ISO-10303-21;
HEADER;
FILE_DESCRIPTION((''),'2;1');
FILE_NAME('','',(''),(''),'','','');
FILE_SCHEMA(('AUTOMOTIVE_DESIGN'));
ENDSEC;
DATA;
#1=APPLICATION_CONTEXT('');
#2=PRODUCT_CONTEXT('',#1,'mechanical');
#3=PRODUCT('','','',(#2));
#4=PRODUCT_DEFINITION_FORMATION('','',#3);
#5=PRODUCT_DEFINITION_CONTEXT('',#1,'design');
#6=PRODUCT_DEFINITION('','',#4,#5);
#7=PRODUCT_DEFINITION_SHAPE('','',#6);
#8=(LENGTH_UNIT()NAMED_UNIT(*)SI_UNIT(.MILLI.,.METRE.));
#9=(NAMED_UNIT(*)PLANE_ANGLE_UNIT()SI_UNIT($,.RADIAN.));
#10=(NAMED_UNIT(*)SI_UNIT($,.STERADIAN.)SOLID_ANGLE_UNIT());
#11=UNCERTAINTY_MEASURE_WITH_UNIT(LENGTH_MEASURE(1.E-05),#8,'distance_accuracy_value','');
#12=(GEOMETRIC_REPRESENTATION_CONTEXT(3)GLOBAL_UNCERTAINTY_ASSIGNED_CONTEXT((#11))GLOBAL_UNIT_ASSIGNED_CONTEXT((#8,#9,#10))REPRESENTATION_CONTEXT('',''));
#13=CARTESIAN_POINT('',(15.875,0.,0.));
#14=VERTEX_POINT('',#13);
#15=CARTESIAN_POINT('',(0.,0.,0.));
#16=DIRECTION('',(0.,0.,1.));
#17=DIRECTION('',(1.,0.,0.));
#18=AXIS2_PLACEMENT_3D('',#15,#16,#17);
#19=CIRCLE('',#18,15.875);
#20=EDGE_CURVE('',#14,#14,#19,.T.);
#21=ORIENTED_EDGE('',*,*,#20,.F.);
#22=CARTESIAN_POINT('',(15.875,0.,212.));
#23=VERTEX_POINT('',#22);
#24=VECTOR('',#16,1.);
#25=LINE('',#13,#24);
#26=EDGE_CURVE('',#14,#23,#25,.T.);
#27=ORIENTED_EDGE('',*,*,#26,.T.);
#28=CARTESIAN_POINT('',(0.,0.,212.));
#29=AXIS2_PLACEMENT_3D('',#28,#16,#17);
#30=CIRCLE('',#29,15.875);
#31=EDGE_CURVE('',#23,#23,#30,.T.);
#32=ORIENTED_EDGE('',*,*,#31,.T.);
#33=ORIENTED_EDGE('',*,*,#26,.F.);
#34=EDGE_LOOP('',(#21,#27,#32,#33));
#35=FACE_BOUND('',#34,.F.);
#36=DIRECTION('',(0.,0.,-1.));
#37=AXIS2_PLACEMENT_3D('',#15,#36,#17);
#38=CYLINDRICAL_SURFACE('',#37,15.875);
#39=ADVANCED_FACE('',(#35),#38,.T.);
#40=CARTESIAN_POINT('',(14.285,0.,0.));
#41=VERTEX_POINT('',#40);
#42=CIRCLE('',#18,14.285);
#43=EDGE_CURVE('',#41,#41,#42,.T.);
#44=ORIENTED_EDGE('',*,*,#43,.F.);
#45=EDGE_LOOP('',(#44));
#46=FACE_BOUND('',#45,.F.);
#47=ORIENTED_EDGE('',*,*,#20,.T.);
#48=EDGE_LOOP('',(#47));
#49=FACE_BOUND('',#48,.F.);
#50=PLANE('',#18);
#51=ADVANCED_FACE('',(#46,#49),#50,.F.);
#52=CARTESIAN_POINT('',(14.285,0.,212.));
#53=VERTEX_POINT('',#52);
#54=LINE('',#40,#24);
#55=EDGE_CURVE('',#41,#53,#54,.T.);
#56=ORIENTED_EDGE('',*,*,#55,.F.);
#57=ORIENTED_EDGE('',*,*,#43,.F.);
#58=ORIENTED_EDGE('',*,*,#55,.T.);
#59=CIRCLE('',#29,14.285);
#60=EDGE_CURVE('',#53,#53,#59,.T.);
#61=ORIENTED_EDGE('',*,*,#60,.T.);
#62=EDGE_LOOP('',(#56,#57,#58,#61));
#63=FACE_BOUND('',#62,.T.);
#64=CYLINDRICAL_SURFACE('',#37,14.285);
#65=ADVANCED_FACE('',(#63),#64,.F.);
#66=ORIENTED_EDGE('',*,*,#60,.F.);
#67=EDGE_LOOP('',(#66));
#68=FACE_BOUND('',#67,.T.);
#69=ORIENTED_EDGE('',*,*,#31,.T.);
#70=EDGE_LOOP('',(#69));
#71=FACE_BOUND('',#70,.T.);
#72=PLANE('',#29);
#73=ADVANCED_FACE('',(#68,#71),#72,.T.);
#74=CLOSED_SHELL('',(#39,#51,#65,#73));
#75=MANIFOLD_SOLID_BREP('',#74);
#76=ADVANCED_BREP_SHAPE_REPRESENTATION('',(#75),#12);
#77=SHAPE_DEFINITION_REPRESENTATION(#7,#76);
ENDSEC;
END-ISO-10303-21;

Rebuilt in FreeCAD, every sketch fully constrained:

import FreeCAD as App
import Part
import Sketcher

doc = App.newDocument("Part")
body = doc.addObject("PartDesign::Body", "Body")

# Sketch on XY plane
sketch1 = body.newObject("Sketcher::SketchObject", "Sketch")
sketch1.AttachmentSupport = (doc.getObject("XY_Plane"), [""])
sketch1.MapMode = "FlatFace"
sketch1.addGeometry(Part.Circle(App.Vector(0, 0, 0), App.Vector(0, 0, 1), 16), False)
sketch1.addGeometry(Part.Circle(App.Vector(0, 0, 0), App.Vector(0, 0, 1), 14), False)
sketch1.addConstraint(Sketcher.Constraint("Coincident", 0, 3, -1, 1))
sketch1.addConstraint(Sketcher.Constraint("Coincident", 1, 3, -1, 1))
sketch1.addConstraint(Sketcher.Constraint("Diameter", 0, 31.75))
sketch1.addConstraint(Sketcher.Constraint("Diameter", 1, 28.57))
pad1 = body.newObject("PartDesign::Pad", "Pad")
pad1.Profile = sketch1
pad1.Length = 212

doc.recompute()
